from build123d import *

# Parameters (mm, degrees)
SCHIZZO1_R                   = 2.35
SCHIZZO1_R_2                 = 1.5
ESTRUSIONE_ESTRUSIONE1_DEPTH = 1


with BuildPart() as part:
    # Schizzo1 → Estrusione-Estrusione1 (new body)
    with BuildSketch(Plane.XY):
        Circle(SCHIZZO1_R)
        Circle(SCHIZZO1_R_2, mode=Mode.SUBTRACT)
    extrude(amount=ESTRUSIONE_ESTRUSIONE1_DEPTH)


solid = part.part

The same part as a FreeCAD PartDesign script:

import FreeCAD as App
import Part
import Sketcher
Q = App.Units.Quantity

doc = App.newDocument("Part")
body = doc.addObject("PartDesign::Body", "Body")

# Sketch on XY plane
sketch1 = body.newObject("Sketcher::SketchObject", "Sketch")
sketch1.AttachmentSupport = (doc.getObject("XY_Plane"), [""])
sketch1.MapMode = "FlatFace"
sketch1.addGeometry(Part.Circle(App.Vector(0, 0, 0), App.Vector(0, 0, 1), 2.4), False)
sketch1.addGeometry(Part.Circle(App.Vector(0, 0, 0), App.Vector(0, 0, 1), 1.5), False)
sketch1.addConstraint(Sketcher.Constraint("Coincident", 0, 3, -1, 1))
sketch1.addConstraint(Sketcher.Constraint("Coincident", 1, 3, -1, 1))
sketch1.addConstraint(Sketcher.Constraint("Diameter", 1, Q("3 mm")))
sketch1.addConstraint(Sketcher.Constraint("Diameter", 0, Q("4.7 mm")))
pad1 = body.newObject("PartDesign::Pad", "Pad")
pad1.Profile = sketch1
pad1.Length = 1

doc.recompute()
